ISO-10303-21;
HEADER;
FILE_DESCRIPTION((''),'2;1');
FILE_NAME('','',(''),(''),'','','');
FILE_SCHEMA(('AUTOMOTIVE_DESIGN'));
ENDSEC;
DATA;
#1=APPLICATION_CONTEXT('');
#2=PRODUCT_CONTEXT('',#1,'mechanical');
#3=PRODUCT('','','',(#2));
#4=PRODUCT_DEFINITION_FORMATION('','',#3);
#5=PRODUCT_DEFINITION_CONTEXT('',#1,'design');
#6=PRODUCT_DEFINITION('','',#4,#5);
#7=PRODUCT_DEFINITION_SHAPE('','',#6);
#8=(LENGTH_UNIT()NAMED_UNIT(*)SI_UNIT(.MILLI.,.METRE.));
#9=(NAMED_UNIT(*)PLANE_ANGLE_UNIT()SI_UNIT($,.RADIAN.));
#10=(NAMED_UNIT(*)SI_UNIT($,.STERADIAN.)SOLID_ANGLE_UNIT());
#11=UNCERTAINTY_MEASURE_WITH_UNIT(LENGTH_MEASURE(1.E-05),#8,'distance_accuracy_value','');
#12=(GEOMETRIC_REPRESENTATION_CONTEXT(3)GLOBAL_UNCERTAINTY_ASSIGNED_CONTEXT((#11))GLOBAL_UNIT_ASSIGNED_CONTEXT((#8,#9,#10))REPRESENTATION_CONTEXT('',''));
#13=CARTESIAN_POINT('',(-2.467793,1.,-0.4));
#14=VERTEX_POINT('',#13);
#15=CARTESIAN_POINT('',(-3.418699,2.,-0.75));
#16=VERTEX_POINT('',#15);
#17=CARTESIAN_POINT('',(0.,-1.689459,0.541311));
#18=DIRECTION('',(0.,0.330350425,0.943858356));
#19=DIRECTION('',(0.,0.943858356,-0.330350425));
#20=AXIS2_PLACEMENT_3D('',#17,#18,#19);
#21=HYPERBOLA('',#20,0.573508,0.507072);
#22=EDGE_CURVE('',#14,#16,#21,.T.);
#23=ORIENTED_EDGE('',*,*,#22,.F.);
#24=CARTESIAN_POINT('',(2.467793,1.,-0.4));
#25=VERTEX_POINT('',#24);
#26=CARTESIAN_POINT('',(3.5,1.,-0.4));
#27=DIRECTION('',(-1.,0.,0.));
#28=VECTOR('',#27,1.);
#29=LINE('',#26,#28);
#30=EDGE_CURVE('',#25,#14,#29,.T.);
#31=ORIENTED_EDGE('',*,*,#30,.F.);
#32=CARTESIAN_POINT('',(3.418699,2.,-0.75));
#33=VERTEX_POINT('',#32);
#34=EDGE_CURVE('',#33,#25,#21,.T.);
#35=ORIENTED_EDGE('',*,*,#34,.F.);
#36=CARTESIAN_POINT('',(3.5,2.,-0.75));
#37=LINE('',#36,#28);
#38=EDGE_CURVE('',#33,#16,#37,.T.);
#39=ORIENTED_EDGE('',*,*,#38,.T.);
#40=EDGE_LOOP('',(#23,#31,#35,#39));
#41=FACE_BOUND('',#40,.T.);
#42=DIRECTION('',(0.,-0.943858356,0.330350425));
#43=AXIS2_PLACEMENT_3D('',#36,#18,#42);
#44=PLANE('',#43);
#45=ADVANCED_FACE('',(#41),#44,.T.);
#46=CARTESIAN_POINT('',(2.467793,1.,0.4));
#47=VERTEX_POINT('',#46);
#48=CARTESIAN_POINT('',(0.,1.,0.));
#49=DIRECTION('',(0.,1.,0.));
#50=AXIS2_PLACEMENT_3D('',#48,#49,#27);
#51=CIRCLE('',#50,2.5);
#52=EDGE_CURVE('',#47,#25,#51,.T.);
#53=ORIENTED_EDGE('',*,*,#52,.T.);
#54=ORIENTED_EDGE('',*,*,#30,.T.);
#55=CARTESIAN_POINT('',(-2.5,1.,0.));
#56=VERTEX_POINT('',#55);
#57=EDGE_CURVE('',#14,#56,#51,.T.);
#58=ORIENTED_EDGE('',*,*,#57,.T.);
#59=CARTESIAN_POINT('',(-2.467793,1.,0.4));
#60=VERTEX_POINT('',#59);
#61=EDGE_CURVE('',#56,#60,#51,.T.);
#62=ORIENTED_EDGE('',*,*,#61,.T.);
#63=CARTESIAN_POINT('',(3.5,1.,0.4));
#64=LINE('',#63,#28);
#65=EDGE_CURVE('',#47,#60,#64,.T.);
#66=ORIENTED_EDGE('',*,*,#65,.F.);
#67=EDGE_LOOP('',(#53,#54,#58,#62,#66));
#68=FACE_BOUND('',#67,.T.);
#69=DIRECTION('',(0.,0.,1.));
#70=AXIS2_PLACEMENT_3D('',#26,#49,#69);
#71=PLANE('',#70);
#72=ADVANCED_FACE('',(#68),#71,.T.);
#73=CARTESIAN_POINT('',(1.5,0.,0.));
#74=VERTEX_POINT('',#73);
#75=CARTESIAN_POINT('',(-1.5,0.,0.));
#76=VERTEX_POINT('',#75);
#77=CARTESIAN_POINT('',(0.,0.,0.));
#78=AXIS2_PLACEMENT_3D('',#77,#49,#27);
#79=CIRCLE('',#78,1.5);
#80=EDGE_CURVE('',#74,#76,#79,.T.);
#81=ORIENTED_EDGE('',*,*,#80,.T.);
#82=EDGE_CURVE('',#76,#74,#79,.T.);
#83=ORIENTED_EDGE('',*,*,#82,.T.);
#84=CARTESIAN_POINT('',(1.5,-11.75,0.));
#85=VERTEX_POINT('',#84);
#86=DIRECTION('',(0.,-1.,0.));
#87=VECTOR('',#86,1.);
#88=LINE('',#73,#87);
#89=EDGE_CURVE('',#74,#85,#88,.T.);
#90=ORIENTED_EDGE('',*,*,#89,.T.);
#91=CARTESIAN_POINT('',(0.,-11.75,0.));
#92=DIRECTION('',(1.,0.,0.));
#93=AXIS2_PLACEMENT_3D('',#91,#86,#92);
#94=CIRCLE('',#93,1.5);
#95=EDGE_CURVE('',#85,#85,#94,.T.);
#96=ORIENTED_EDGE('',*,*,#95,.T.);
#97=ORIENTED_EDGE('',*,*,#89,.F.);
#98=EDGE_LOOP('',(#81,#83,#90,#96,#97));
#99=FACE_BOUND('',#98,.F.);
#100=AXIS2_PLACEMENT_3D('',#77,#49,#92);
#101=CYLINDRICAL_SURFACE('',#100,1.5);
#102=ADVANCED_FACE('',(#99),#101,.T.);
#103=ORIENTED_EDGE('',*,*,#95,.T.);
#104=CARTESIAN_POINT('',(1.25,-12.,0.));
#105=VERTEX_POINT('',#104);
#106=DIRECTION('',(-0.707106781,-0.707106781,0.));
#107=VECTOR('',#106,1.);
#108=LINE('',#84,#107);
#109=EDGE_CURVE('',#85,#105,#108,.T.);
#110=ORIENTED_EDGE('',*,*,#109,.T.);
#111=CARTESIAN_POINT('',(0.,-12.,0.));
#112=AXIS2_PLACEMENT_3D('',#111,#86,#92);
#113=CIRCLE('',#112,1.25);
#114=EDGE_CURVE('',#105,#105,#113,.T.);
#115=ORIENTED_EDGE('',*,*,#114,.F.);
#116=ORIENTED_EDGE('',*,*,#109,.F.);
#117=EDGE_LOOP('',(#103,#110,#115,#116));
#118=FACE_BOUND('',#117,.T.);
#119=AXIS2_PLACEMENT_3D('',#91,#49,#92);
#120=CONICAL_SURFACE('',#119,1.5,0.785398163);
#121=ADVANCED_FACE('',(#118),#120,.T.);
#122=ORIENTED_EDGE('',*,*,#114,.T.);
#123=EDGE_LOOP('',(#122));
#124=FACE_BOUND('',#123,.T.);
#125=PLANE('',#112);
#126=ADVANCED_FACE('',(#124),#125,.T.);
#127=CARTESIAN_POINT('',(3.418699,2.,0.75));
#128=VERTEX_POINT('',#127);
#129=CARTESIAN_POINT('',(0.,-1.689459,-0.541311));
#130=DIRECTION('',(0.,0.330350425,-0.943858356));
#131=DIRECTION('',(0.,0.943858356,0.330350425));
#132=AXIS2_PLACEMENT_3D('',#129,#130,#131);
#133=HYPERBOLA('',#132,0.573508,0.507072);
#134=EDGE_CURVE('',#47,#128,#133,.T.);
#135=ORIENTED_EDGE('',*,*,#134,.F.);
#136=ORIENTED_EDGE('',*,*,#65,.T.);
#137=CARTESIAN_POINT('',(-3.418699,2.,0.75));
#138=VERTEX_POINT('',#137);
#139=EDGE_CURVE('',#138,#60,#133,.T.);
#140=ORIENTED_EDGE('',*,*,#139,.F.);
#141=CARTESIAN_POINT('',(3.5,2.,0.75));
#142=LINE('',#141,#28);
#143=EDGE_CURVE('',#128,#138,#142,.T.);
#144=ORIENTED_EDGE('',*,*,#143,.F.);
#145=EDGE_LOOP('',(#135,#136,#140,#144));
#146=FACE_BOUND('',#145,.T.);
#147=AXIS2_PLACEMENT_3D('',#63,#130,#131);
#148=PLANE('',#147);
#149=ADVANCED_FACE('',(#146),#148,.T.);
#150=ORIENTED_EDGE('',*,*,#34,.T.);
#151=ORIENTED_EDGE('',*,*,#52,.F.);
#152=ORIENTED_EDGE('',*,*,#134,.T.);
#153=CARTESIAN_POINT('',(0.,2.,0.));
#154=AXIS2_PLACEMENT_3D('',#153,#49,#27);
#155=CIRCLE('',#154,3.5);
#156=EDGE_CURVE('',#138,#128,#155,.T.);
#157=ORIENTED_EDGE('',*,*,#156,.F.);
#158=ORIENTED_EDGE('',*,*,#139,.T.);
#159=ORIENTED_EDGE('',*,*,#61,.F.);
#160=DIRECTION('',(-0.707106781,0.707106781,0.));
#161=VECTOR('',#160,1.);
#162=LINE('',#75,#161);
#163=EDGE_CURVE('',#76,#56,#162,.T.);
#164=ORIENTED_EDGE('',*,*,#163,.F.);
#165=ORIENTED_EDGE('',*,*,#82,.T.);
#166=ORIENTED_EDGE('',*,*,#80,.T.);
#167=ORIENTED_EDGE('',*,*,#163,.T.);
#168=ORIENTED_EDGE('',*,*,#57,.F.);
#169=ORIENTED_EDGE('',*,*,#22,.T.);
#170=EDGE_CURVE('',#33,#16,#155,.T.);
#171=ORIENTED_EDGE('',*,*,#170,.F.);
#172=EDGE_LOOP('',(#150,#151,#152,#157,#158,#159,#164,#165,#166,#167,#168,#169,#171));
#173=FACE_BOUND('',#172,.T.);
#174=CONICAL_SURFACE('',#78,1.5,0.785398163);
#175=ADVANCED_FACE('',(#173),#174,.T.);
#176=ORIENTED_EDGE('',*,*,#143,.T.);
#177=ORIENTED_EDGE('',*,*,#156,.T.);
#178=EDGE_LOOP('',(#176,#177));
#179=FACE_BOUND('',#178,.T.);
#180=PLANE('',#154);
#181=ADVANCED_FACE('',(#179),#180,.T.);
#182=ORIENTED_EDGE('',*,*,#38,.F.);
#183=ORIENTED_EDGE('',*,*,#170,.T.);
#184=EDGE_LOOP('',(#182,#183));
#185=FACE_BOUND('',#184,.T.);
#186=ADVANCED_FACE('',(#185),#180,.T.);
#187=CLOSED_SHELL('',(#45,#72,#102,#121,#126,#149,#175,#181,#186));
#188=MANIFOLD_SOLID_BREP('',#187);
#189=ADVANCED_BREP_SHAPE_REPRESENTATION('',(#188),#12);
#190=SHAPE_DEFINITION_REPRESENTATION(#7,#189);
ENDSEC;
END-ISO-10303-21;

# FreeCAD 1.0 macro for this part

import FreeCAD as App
import Part
import Sketcher

V = App.Vector


def edges_at(feature, points):
    """Names of the edges that pass closest to the given points."""
    edges = feature.Shape.Edges
    near = lambda p: min(range(len(edges)), key=lambda i: edges[i].distToShape(Part.Vertex(*p))[0])
    return sorted({f"Edge{near(p) + 1}" for p in points})


def add_polygon(sketch, points):
    """Adds a closed chain of lines whose ends are joined by coincident constraints."""
    first, n = sketch.GeometryCount, len(points)
    for a, b in zip(points, points[1:] + points[:1]):
        sketch.addGeometry(Part.LineSegment(App.Vector(*a, 0), App.Vector(*b, 0)), False)
    for i in range(n):
        sketch.addConstraint(Sketcher.Constraint("Coincident", first + i, 2, first + (i + 1) % n, 1))

doc = App.newDocument("Part")
body = doc.addObject("PartDesign::Body", "Body")

# Sketch on XY plane
sketch1 = body.newObject("Sketcher::SketchObject", "Sketch")
sketch1.AttachmentSupport = (doc.getObject("XY_Plane"), [""])
sketch1.MapMode = "FlatFace"
add_polygon(sketch1, [(0, 2), (-3.5, 2), (-1.5, 0), (0, 0)])  # lines 0-3
sketch1.addConstraint(Sketcher.Constraint("Horizontal", 0))
sketch1.addConstraint(Sketcher.Constraint("Horizontal", 2))
sketch1.addConstraint(Sketcher.Constraint("Vertical", 3))
sketch1.addConstraint(Sketcher.Constraint("Coincident", 2, 2, -1, 1))
sketch1.addConstraint(Sketcher.Constraint("DistanceY", 3, 1, 3, 2, 2.0))
sketch1.addConstraint(Sketcher.Constraint("DistanceX", 0, 2, 0, 1, 3.5))
sketch1.addConstraint(Sketcher.Constraint("DistanceX", 2, 1, 2, 2, 1.5))
revolution = body.newObject("PartDesign::Revolution", "Revolution")
revolution.Profile = sketch1
revolution.ReferenceAxis = (sketch1, ["V_Axis"])
revolution.Angle = 360

# Sketch on XZ plane
sketch2 = body.newObject("Sketcher::SketchObject", "Sketch001")
sketch2.AttachmentSupport = (doc.getObject("XZ_Plane"), [""])
sketch2.MapMode = "FlatFace"
sketch2.addGeometry(Part.Circle(V(0, 0, 0), V(0, 0, 1), 1.5), False)
sketch2.addConstraint(Sketcher.Constraint("Coincident", 0, 3, -1, 1))
sketch2.addConstraint(Sketcher.Constraint("Diameter", 0, 3.0))
pad1 = body.newObject("PartDesign::Pad", "Pad")
pad1.Profile = sketch2
pad1.Length = 12
doc.recompute()

chamfer = body.newObject("PartDesign::Chamfer", "Chamfer")
chamfer.Base = (pad1, edges_at(pad1, [(-1.5, -12, 0)]))
chamfer.Size = 0.25

# Sketch on YZ plane
sketch3 = body.newObject("Sketcher::SketchObject", "Sketch002")
sketch3.AttachmentSupport = (doc.getObject("YZ_Plane"), [""])
sketch3.MapMode = "FlatFace"
sketch3.AttachmentOffset = App.Placement(V(0, 0, 3.5), App.Rotation())
add_polygon(sketch3, [(1, -0.4), (2, -0.75), (2, 0.75), (1, 0.4)])  # lines 0-3
sketch3.addConstraint(Sketcher.Constraint("Vertical", 1))
sketch3.addConstraint(Sketcher.Constraint("Vertical", 3))
sketch3.addConstraint(Sketcher.Constraint("Equal", 0, 2))
sketch3.addConstraint(Sketcher.Constraint("DistanceY", 1, 1, 1, 2, 1.5))
sketch3.addConstraint(Sketcher.Constraint("DistanceY", 3, 2, 3, 1, 0.8))
sketch3.addConstraint(Sketcher.Constraint("DistanceX", -1, 1, 2, 2, 1.0))
sketch3.addConstraint(Sketcher.Constraint("DistanceX", 2, 2, 1, 2, 1.0))
sketch3.addConstraint(Sketcher.Constraint("DistanceY", -1, 1, 2, 2, 0.4))
pocket1 = body.newObject("PartDesign::Pocket", "Pocket")
pocket1.Profile = sketch3
pocket1.Length = 7

doc.recompute()
